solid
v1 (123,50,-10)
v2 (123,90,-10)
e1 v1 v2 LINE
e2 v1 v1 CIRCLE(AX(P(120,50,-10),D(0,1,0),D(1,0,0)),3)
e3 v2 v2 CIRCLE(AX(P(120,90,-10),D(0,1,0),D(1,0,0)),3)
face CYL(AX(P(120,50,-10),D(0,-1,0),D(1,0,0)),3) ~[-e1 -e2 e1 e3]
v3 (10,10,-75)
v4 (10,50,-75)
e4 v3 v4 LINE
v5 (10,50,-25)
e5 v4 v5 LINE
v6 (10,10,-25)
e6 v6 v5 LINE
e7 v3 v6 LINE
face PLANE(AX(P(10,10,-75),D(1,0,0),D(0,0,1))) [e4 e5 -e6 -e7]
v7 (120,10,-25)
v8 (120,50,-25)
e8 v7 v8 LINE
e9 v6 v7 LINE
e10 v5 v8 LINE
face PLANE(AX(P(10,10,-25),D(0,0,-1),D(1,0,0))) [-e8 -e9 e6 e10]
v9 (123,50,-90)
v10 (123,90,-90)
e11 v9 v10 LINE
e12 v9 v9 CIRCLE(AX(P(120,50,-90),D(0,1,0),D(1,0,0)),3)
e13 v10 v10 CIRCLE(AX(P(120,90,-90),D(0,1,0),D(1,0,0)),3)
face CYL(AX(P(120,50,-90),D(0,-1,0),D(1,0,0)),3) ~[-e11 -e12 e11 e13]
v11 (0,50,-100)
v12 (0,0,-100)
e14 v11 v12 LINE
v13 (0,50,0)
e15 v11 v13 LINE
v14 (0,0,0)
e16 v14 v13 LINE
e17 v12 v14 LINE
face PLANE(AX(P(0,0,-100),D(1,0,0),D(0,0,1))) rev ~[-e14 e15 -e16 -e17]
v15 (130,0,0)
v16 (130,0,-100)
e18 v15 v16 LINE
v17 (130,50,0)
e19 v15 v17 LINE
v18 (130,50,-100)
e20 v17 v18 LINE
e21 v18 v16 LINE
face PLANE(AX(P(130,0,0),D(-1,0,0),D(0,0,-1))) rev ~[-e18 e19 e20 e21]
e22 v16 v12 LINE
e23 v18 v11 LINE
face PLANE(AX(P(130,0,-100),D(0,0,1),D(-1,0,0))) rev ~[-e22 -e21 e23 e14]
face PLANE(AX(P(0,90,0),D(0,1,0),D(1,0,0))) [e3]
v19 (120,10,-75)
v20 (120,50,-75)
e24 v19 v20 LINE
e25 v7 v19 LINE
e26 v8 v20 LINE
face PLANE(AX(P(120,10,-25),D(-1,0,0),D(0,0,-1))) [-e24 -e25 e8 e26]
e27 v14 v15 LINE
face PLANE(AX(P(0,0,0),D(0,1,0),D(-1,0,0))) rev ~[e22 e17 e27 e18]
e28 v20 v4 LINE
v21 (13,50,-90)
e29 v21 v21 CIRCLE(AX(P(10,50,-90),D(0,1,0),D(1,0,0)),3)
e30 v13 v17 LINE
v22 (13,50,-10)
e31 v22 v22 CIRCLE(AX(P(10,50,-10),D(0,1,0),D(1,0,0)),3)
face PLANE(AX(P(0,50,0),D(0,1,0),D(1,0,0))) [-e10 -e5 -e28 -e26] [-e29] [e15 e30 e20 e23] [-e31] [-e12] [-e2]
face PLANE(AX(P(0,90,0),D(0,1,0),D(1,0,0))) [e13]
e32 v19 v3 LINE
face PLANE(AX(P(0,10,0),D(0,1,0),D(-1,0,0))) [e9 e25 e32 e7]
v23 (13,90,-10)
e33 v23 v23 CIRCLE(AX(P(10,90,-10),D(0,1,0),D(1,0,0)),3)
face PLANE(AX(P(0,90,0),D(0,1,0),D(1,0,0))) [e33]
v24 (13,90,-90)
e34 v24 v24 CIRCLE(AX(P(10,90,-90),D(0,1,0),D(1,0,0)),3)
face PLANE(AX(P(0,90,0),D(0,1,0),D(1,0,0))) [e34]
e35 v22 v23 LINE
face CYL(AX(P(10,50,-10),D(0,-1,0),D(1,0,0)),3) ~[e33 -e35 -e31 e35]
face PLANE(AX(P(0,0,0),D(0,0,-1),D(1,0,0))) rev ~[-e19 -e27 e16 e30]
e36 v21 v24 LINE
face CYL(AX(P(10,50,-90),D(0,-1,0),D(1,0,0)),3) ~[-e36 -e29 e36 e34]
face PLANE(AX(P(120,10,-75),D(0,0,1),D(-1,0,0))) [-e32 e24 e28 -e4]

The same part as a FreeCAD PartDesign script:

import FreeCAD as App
import Part
import Sketcher
Q = App.Units.Quantity


def add_polygon(sketch, points):
    """Adds a closed chain of lines whose ends are joined by coincident constraints."""
    first, n = sketch.GeometryCount, len(points)
    for a, b in zip(points, points[1:] + points[:1]):
        sketch.addGeometry(Part.LineSegment(App.Vector(*a, 0), App.Vector(*b, 0)), False)
    for i in range(n):
        sketch.addConstraint(Sketcher.Constraint("Coincident", first + i, 2, first + (i + 1) % n, 1))

doc = App.newDocument("Part")
body = doc.addObject("PartDesign::Body", "Body")

# Sketch on XZ plane
sketch1 = body.newObject("Sketcher::SketchObject", "Sketch")
sketch1.AttachmentSupport = (doc.getObject("XZ_Plane"), [""])
sketch1.MapMode = "FlatFace"
add_polygon(sketch1, [(0, -100), (0, 0), (130, 0), (130, -100)])  # lines 0-3
sketch1.addConstraint([
    Sketcher.Constraint("Vertical", 0),
    Sketcher.Constraint("Horizontal", 1),
    Sketcher.Constraint("Vertical", 2),
    Sketcher.Constraint("Horizontal", 3),
    Sketcher.Constraint("Coincident", 0, 2, -1, 1),
    Sketcher.Constraint("DistanceX", 1, 1, 1, 2, Q("130 mm")),
    Sketcher.Constraint("DistanceY", 0, 1, 0, 2, Q("100 mm")),
])
pad1 = body.newObject("PartDesign::Pad", "Pad")
pad1.Profile = sketch1
pad1.Length = 10
pad1.Reversed = True

# Sketch on XZ plane
sketch2 = body.newObject("Sketcher::SketchObject", "Sketch001")
sketch2.AttachmentSupport = (doc.getObject("XZ_Plane"), [""])
sketch2.MapMode = "FlatFace"
sketch2.AttachmentOffset = App.Placement(App.Vector(0, 0, -10), App.Rotation())
add_polygon(sketch2, [(130, 0), (130, -100), (0, -100), (0, 0)])  # lines 0-3
add_polygon(sketch2, [(120, -25), (10, -25), (10, -75), (120, -75)])  # lines 4-7
sketch2.addConstraint([
    Sketcher.Constraint("Vertical", 0),
    Sketcher.Constraint("Horizontal", 1),
    Sketcher.Constraint("Vertical", 2),
    Sketcher.Constraint("Horizontal", 3),
    Sketcher.Constraint("Horizontal", 4),
    Sketcher.Constraint("Vertical", 5),
    Sketcher.Constraint("Horizontal", 6),
    Sketcher.Constraint("Vertical", 7),
    Sketcher.Constraint("Coincident", 2, 2, -1, 1),
    Sketcher.Constraint("DistanceX", -1, 1, 4, 2, Q("10 mm")),
    Sketcher.Constraint("DistanceY", 4, 2, -1, 1, Q("25 mm")),
    Sketcher.Constraint("DistanceY", 1, 2, 5, 2, Q("25 mm")),
    Sketcher.Constraint("DistanceX", 6, 2, 0, 2, Q("10 mm")),
    Sketcher.Constraint("DistanceX", 1, 2, 1, 1, Q("130 mm")),
    Sketcher.Constraint("DistanceY", 0, 2, 0, 1, Q("100 mm")),
])
pad2 = body.newObject("PartDesign::Pad", "Pad001")
pad2.Profile = sketch2
pad2.Length = 40
pad2.Reversed = True

# Sketch on XZ plane
sketch3 = body.newObject("Sketcher::SketchObject", "Sketch002")
sketch3.AttachmentSupport = (doc.getObject("XZ_Plane"), [""])
sketch3.MapMode = "FlatFace"
sketch3.AttachmentOffset = App.Placement(App.Vector(0, 0, -50), App.Rotation())
sketch3.addGeometry([
    Part.Circle(App.Vector(10, -90, 0), App.Vector(0, 0, 1), 3),
    Part.Circle(App.Vector(120, -90, 0), App.Vector(0, 0, 1), 3),
    Part.Circle(App.Vector(10, -10, 0), App.Vector(0, 0, 1), 3),
    Part.Circle(App.Vector(120, -10, 0), App.Vector(0, 0, 1), 3),
], False)
sketch3.addConstraint([
    Sketcher.Constraint("Equal", 0, 1),
    Sketcher.Constraint("Equal", 1, 2),
    Sketcher.Constraint("Equal", 2, 3),
    Sketcher.Constraint("Horizontal", 0, 3, 1, 3),
    Sketcher.Constraint("Horizontal", 2, 3, 3, 3),
    Sketcher.Constraint("Vertical", 0, 3, 2, 3),
    Sketcher.Constraint("Vertical", 1, 3, 3, 3),
    Sketcher.Constraint("Diameter", 0, Q("6 mm")),
    Sketcher.Constraint("DistanceX", -1, 1, 0, 3, Q("10 mm")),
    Sketcher.Constraint("DistanceY", 2, 3, -1, 1, Q("10 mm")),
    Sketcher.Constraint("DistanceY", 0, 3, -1, 1, Q("90 mm")),
    Sketcher.Constraint("DistanceX", -1, 1, 1, 3, Q("120 mm")),
])
pad3 = body.newObject("PartDesign::Pad", "Pad002")
pad3.Profile = sketch3
pad3.Length = 40
pad3.Reversed = True

doc.recompute()
